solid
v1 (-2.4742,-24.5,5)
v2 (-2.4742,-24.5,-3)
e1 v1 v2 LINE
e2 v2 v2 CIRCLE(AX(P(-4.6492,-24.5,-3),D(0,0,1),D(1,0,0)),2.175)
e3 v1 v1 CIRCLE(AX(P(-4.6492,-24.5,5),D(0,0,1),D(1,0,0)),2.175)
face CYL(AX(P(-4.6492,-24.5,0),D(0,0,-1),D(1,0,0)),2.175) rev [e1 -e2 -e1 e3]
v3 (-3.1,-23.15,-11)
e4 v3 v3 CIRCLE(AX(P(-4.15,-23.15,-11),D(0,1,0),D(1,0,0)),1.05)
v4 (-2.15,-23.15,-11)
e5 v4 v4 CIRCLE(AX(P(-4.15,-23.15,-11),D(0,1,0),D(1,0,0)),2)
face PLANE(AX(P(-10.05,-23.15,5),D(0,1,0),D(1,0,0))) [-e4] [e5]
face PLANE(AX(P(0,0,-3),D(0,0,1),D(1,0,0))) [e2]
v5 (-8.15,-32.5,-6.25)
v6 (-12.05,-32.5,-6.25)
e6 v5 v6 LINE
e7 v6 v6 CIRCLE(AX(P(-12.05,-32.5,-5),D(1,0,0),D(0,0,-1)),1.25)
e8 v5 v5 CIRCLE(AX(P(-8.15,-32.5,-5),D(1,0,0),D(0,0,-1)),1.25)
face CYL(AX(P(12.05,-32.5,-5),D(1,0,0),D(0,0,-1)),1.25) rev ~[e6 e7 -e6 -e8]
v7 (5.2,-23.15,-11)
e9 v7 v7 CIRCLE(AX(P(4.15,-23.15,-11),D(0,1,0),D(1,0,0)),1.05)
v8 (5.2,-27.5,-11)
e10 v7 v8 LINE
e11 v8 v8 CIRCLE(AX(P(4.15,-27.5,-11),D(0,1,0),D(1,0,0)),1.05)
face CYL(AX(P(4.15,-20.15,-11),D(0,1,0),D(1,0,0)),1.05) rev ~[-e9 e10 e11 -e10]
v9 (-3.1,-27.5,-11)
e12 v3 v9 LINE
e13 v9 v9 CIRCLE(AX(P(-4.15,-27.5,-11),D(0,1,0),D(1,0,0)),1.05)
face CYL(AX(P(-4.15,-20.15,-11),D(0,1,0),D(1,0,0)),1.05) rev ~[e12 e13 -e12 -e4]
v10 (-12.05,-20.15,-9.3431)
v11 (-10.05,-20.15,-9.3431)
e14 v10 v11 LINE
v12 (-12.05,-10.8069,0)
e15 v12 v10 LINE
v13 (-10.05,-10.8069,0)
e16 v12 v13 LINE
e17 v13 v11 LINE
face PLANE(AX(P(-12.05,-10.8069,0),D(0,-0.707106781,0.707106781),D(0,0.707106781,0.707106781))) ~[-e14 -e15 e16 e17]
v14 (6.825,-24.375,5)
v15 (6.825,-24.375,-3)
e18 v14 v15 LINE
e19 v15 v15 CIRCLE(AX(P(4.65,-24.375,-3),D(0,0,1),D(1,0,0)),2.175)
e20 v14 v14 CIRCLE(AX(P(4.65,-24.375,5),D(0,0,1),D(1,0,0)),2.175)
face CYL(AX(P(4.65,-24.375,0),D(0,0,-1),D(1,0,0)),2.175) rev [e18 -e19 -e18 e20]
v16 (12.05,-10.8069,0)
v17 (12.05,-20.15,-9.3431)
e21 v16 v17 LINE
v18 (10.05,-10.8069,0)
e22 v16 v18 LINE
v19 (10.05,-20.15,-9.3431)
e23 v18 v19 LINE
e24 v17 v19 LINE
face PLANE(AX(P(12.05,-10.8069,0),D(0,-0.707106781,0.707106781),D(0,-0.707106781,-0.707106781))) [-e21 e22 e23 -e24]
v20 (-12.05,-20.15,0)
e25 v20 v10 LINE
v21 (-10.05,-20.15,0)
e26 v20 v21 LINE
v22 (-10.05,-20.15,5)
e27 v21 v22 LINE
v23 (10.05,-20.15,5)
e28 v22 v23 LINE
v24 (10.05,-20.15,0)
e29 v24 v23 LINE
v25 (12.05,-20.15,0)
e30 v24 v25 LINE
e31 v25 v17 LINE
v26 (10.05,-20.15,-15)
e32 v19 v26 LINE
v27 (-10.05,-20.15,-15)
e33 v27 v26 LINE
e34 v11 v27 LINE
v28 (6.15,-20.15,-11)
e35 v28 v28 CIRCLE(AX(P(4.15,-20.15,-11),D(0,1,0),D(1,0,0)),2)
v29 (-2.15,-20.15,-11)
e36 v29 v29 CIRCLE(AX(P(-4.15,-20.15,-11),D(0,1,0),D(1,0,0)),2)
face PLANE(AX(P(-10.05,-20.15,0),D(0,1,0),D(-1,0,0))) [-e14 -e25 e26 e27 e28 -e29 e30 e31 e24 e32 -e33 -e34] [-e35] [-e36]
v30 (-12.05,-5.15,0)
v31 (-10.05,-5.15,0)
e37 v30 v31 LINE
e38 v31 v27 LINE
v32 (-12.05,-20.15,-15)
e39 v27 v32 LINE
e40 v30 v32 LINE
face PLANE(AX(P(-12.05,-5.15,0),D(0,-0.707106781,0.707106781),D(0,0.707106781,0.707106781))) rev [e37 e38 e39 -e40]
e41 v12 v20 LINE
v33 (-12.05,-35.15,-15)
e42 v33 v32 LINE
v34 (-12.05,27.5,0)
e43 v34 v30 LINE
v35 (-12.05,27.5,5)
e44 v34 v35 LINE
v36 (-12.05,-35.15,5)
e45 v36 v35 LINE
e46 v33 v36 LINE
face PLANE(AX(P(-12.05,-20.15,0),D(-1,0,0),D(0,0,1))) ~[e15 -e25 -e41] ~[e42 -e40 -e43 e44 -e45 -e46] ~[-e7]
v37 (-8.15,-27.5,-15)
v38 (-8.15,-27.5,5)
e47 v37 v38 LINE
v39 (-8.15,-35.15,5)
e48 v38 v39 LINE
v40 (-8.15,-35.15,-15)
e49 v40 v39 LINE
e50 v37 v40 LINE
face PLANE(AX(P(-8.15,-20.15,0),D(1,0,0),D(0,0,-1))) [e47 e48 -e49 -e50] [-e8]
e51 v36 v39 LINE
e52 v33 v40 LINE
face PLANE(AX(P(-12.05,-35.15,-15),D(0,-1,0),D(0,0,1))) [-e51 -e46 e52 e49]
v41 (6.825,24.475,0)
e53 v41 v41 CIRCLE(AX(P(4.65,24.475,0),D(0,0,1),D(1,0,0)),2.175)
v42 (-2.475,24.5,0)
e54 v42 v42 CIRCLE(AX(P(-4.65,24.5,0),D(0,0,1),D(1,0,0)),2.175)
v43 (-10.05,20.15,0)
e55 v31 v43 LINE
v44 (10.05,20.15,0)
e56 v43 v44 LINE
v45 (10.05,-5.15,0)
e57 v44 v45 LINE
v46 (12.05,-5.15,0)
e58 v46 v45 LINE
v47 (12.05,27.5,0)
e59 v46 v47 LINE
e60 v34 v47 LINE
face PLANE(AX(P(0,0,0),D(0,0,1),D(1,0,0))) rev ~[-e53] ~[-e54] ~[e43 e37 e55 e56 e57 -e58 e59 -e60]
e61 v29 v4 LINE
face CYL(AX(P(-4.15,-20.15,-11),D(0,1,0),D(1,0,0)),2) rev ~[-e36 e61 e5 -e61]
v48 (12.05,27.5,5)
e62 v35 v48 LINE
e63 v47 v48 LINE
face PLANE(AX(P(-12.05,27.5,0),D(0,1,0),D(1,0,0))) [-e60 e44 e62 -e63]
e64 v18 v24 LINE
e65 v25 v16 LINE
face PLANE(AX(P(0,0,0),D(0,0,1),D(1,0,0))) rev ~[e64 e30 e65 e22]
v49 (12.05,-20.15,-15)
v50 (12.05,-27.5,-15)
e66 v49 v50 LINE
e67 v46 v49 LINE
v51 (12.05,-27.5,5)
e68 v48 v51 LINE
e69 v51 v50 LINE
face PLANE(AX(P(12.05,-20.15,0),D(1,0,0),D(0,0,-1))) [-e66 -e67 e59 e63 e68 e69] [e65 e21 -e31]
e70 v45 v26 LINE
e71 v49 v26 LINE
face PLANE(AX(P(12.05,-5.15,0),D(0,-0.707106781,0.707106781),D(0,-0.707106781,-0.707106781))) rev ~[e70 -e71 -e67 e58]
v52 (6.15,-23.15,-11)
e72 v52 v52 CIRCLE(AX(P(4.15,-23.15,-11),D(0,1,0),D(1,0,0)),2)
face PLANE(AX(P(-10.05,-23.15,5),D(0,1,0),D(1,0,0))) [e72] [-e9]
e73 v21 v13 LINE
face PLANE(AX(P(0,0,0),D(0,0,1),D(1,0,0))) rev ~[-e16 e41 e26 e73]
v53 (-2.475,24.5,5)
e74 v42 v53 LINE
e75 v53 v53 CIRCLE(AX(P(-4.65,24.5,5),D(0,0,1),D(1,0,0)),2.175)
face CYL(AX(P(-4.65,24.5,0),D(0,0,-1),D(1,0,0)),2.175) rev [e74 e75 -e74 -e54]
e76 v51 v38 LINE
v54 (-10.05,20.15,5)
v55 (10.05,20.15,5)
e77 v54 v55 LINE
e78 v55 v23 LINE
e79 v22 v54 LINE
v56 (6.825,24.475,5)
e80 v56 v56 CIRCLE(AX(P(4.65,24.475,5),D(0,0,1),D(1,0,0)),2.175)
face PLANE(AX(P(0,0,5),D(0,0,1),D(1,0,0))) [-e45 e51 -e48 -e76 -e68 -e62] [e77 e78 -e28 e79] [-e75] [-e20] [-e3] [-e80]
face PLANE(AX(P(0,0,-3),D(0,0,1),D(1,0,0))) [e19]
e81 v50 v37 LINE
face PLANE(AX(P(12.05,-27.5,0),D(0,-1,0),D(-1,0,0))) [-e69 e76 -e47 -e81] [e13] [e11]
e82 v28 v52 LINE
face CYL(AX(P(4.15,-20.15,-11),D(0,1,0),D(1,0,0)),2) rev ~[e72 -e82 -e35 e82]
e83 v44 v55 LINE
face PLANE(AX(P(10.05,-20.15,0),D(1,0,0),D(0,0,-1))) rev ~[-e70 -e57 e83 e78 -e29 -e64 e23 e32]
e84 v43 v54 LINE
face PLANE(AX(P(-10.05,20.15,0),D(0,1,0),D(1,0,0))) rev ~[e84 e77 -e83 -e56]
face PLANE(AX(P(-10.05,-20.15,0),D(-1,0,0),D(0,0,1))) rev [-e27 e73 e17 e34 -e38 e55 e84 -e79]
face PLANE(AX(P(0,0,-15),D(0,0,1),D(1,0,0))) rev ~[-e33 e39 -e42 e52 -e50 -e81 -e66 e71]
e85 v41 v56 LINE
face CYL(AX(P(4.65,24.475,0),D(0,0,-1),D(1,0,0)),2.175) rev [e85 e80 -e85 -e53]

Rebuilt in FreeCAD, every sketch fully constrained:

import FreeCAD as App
import Part
import Sketcher

V = App.Vector


def add_polygon(sketch, points):
    """Adds a closed chain of lines whose ends are joined by coincident constraints."""
    first, n = sketch.GeometryCount, len(points)
    for a, b in zip(points, points[1:] + points[:1]):
        sketch.addGeometry(Part.LineSegment(App.Vector(*a, 0), App.Vector(*b, 0)), False)
    for i in range(n):
        sketch.addConstraint(Sketcher.Constraint("Coincident", first + i, 2, first + (i + 1) % n, 1))

doc = App.newDocument("Part")
params = doc.addObject("Spreadsheet::Sheet", "Params")
for row, (alias, value) in enumerate([
    ("sketch1_diameter", "4.35 mm"),
    ("sketch1_height", "55 mm"),
    ("sketch1_width", "24.1 mm"),
    ("sketch1_width2", "20.1 mm"),
    ("sketch1_height2", "40.3 mm"),
    ("pad1_length", "5 mm"),
    ("sketch2_width", "24.1 mm"),
    ("sketch2_height", "7.35 mm"),
    ("pad2_length", "15 mm"),
    ("sketch3_diameter", "4.35 mm"),
    ("pocket1_length", "3 mm"),
    ("sketch4_diameter", "2.1 mm"),
    ("pocket2_length", "10 mm"),
    ("sketch5_diameter", "4 mm"),
    ("pocket3_length", "3 mm"),
    ("pad3_length", "2 mm"),
    ("sketch7_width", "15 mm"),
    ("pad4_length", "3.9 mm"),
    ("sketch8_diameter", "2.5 mm"),
    ("pocket4_length", "35.65 mm"),
], start=1):
    params.set(f"A{row}", alias)
    params.set(f"B{row}", "=" + value)
    params.setAlias(f"B{row}", alias)

body = doc.addObject("PartDesign::Body", "Body")

sketch1 = body.newObject("Sketcher::SketchObject", "Sketch")
sketch1.AttachmentSupport = (doc.getObject("XY_Plane"), [""])
sketch1.MapMode = "FlatFace"
add_polygon(sketch1, [(12.1, 27.5), (-12.1, 27.5), (-12.1, -27.5), (12.1, -27.5)])
add_polygon(sketch1, [(10.1, 20.1), (10.1, -20.1), (-10.1, -20.1), (-10.1, 20.1)])
sketch1.addGeometry(Part.Circle(V(-4.7, 24.5, 0), V(0, 0, 1), 2.2), False)
sketch1.addGeometry(Part.Circle(V(4.7, 24.5, 0), V(0, 0, 1), 2.2), False)
sketch1.addGeometry(Part.Circle(V(-4.6, -24.5, 0), V(0, 0, 1), 2.2), False)
sketch1.addGeometry(Part.Circle(V(4.7, -24.4, 0), V(0, 0, 1), 2.2), False)
sketch1.addConstraint(Sketcher.Constraint("Horizontal", 0))
sketch1.addConstraint(Sketcher.Constraint("Vertical", 1))
sketch1.addConstraint(Sketcher.Constraint("Horizontal", 2))
sketch1.addConstraint(Sketcher.Constraint("Vertical", 3))
sketch1.addConstraint(Sketcher.Constraint("Vertical", 4))
sketch1.addConstraint(Sketcher.Constraint("Horizontal", 5))
sketch1.addConstraint(Sketcher.Constraint("Vertical", 6))
sketch1.addConstraint(Sketcher.Constraint("Horizontal", 7))
sketch1.addConstraint(Sketcher.Constraint("Equal", 8, 9))
sketch1.addConstraint(Sketcher.Constraint("Equal", 9, 10))
sketch1.addConstraint(Sketcher.Constraint("Equal", 10, 11))
sketch1.addConstraint(Sketcher.Constraint("Symmetric", 0, 2, 2, 2, -1, 1))
sketch1.addConstraint(Sketcher.Constraint("Symmetric", 4, 2, 6, 2, -1, 1))
sketch1.addConstraint(Sketcher.Constraint("Vertical", 9, 3, 11, 3))
sketch1.addConstraint(Sketcher.Constraint("Diameter", 8, 4.35))
sketch1.addConstraint(Sketcher.Constraint("DistanceY", 1, 2, 1, 1, 55.0))
sketch1.addConstraint(Sketcher.Constraint("DistanceX", 0, 2, 0, 1, 24.1))
sketch1.addConstraint(Sketcher.Constraint("DistanceX", 5, 2, 5, 1, 20.1))
sketch1.addConstraint(Sketcher.Constraint("DistanceY", 4, 2, 4, 1, 40.3))
sketch1.addConstraint(Sketcher.Constraint("DistanceX", 8, 3, 9, 3, 9.3))
sketch1.addConstraint(Sketcher.Constraint("DistanceX", 11, 3, 4, 2, 5.4))
sketch1.addConstraint(Sketcher.Constraint("DistanceY", 11, 3, 9, 3, 48.85))
sketch1.addConstraint(Sketcher.Constraint("DistanceY", 10, 3, 4, 2, 4.35))
sketch1.addConstraint(Sketcher.Constraint("DistanceY", 6, 2, 8, 3, 4.35))
sketch1.addConstraint(Sketcher.Constraint("DistanceY", 6, 2, 9, 3, 4.325))
sketch1.addConstraint(Sketcher.Constraint("DistanceX", 10, 3, -1, 1, 4.6492))
sketch1.setExpression("Constraints[22]", "Params.sketch1_diameter")
sketch1.setExpression("Constraints[23]", "Params.sketch1_height")
sketch1.setExpression("Constraints[24]", "Params.sketch1_width")
sketch1.setExpression("Constraints[25]", "Params.sketch1_width2")
sketch1.setExpression("Constraints[26]", "Params.sketch1_height2")
pad1 = body.newObject("PartDesign::Pad", "Pad")
pad1.Profile = sketch1
pad1.setExpression("Length", "Params.pad1_length")

sketch2 = body.newObject("Sketcher::SketchObject", "Sketch001")
sketch2.AttachmentSupport = (doc.getObject("XY_Plane"), [""])
sketch2.MapMode = "FlatFace"
add_polygon(sketch2, [(-12, -20), (-12, -28), (12, -28), (12, -20)])
sketch2.addConstraint(Sketcher.Constraint("Vertical", 0))
sketch2.addConstraint(Sketcher.Constraint("Horizontal", 1))
sketch2.addConstraint(Sketcher.Constraint("Vertical", 2))
sketch2.addConstraint(Sketcher.Constraint("Horizontal", 3))
sketch2.addConstraint(Sketcher.Constraint("DistanceX", 1, 1, 1, 2, 24.1))
sketch2.addConstraint(Sketcher.Constraint("DistanceY", 0, 2, 0, 1, 7.35))
sketch2.addConstraint(Sketcher.Constraint("DistanceY", 0, 2, -1, 1, 27.5))
sketch2.addConstraint(Sketcher.Constraint("DistanceX", 0, 2, -1, 1, 12.05))
sketch2.setExpression("Constraints[8]", "Params.sketch2_width")
sketch2.setExpression("Constraints[9]", "Params.sketch2_height")
pad2 = body.newObject("PartDesign::Pad", "Pad001")
pad2.Profile = sketch2
pad2.setExpression("Length", "Params.pad2_length")
pad2.Reversed = True

sketch3 = body.newObject("Sketcher::SketchObject", "Sketch002")
sketch3.AttachmentSupport = (doc.getObject("XY_Plane"), [""])
sketch3.MapMode = "FlatFace"
sketch3.addGeometry(Part.Circle(V(-4.6, -24.5, 0), V(0, 0, 1), 2.2), False)
sketch3.addGeometry(Part.Circle(V(4.7, -24.4, 0), V(0, 0, 1), 2.2), False)
sketch3.addConstraint(Sketcher.Constraint("Equal", 0, 1))
sketch3.addConstraint(Sketcher.Constraint("Diameter", 0, 4.35))
sketch3.addConstraint(Sketcher.Constraint("DistanceY", 0, 3, -1, 1, 24.5))
sketch3.addConstraint(Sketcher.Constraint("DistanceX", -1, 1, 1, 3, 4.65))
sketch3.addConstraint(Sketcher.Constraint("DistanceY", 1, 3, -1, 1, 24.375))
sketch3.addConstraint(Sketcher.Constraint("DistanceX", 0, 3, -1, 1, 4.6492))
sketch3.setExpression("Constraints[1]", "Params.sketch3_diameter")
pocket1 = body.newObject("PartDesign::Pocket", "Pocket")
pocket1.Profile = sketch3
pocket1.setExpression("Length", "Params.pocket1_length")

sketch4 = body.newObject("Sketcher::SketchObject", "Sketch003")
sketch4.AttachmentSupport = (doc.getObject("XZ_Plane"), [""])
sketch4.MapMode = "FlatFace"
sketch4.AttachmentOffset = App.Placement(V(0, 0, 20.15), App.Rotation())
sketch4.addGeometry(Part.Circle(V(-4.2, -11, 0), V(0, 0, 1), 1.1), False)
sketch4.addGeometry(Part.Circle(V(4.2, -11, 0), V(0, 0, 1), 1.1), False)
sketch4.addConstraint(Sketcher.Constraint("Equal", 0, 1))
sketch4.addConstraint(Sketcher.Constraint("Symmetric", 0, 3, 1, 3, -2))
sketch4.addConstraint(Sketcher.Constraint("Diameter", 0, 2.1))
sketch4.addConstraint(Sketcher.Constraint("DistanceX", 0, 3, 1, 3, 8.3))
sketch4.addConstraint(Sketcher.Constraint("DistanceY", 0, 3, -1, 1, 11.0))
sketch4.setExpression("Constraints[2]", "Params.sketch4_diameter")
pocket2 = body.newObject("PartDesign::Pocket", "Pocket001")
pocket2.Profile = sketch4
pocket2.setExpression("Length", "Params.pocket2_length")
pocket2.Reversed = True

sketch5 = body.newObject("Sketcher::SketchObject", "Sketch004")
sketch5.AttachmentSupport = (doc.getObject("XZ_Plane"), [""])
sketch5.MapMode = "FlatFace"
sketch5.AttachmentOffset = App.Placement(V(0, 0, 20.15), App.Rotation())
sketch5.addGeometry(Part.Circle(V(-4.2, -11, 0), V(0, 0, 1), 2), False)
sketch5.addGeometry(Part.Circle(V(4.2, -11, 0), V(0, 0, 1), 2), False)
sketch5.addConstraint(Sketcher.Constraint("Equal", 0, 1))
sketch5.addConstraint(Sketcher.Constraint("Symmetric", 0, 3, 1, 3, -2))
sketch5.addConstraint(Sketcher.Constraint("Diameter", 0, 4.0))
sketch5.addConstraint(Sketcher.Constraint("DistanceX", 0, 3, 1, 3, 8.3))
sketch5.addConstraint(Sketcher.Constraint("DistanceY", 0, 3, -1, 1, 11.0))
sketch5.setExpression("Constraints[2]", "Params.sketch5_diameter")
pocket3 = body.newObject("PartDesign::Pocket", "Pocket002")
pocket3.Profile = sketch5
pocket3.setExpression("Length", "Params.pocket3_length")
pocket3.Reversed = True

sketch6 = body.newObject("Sketcher::SketchObject", "Sketch005")
sketch6.AttachmentSupport = (doc.getObject("YZ_Plane"), [""])
sketch6.MapMode = "FlatFace"
sketch6.AttachmentOffset = App.Placement(V(0, 0, 12.05), App.Rotation())
add_polygon(sketch6, [(-20, -15), (-5, 0), (-11, 0), (-20, -9)])
sketch6.addConstraint(Sketcher.Constraint("Horizontal", 1))
sketch6.addConstraint(Sketcher.Constraint("Vertical", 3))
sketch6.addConstraint(Sketcher.Constraint("PointOnObject", 0, 2, -1))
sketch6.addConstraint(Sketcher.Constraint("Parallel", 0, 2))
sketch6.addConstraint(Sketcher.Constraint("Equal", 1, 3))
sketch6.addConstraint(Sketcher.Constraint("DistanceY", 3, 2, -1, 1, 15.0))
sketch6.addConstraint(Sketcher.Constraint("DistanceX", 1, 2, 1, 1, 5.657))
sketch6.addConstraint(Sketcher.Constraint("DistanceX", 0, 2, -1, 1, 5.15))
pad3 = body.newObject("PartDesign::Pad", "Pad002")
pad3.Profile = sketch6
pad3.setExpression("Length", "Params.pad3_length")
pad3.Reversed = True
doc.recompute()

mirrored = body.newObject("PartDesign::Mirrored", "Mirrored")
mirrored.Originals = [pad3]
mirrored.MirrorPlane = (doc.getObject("YZ_Plane"), [""])
body.Tip = mirrored

sketch7 = body.newObject("Sketcher::SketchObject", "Sketch006")
sketch7.AttachmentSupport = (doc.getObject("YZ_Plane"), [""])
sketch7.MapMode = "FlatFace"
sketch7.AttachmentOffset = App.Placement(V(0, 0, -12.05), App.Rotation())
add_polygon(sketch7, [(-20, -15), (-20, 5), (-35, 5), (-35, -15)])
sketch7.addConstraint(Sketcher.Constraint("Vertical", 0))
sketch7.addConstraint(Sketcher.Constraint("Horizontal", 1))
sketch7.addConstraint(Sketcher.Constraint("Vertical", 2))
sketch7.addConstraint(Sketcher.Constraint("Horizontal", 3))
sketch7.addConstraint(Sketcher.Constraint("DistanceX", 1, 2, 1, 1, 15.0))
sketch7.addConstraint(Sketcher.Constraint("DistanceY", -1, 1, 0, 2, 5.0))
sketch7.addConstraint(Sketcher.Constraint("DistanceY", 2, 2, -1, 1, 15.0))
sketch7.addConstraint(Sketcher.Constraint("DistanceX", 0, 2, -1, 1, 20.15))
sketch7.setExpression("Constraints[8]", "Params.sketch7_width")
pad4 = body.newObject("PartDesign::Pad", "Pad003")
pad4.Profile = sketch7
pad4.setExpression("Length", "Params.pad4_length")

sketch8 = body.newObject("Sketcher::SketchObject", "Sketch007")
sketch8.AttachmentSupport = (doc.getObject("YZ_Plane"), [""])
sketch8.MapMode = "FlatFace"
sketch8.AttachmentOffset = App.Placement(V(0, 0, 12.05), App.Rotation())
sketch8.addGeometry(Part.Circle(V(-32.5, -5, 0), V(0, 0, 1), 1.2), False)
sketch8.addConstraint(Sketcher.Constraint("Diameter", 0, 2.5))
sketch8.addConstraint(Sketcher.Constraint("DistanceY", 0, 3, -1, 1, 5.0))
sketch8.addConstraint(Sketcher.Constraint("DistanceX", 0, 3, -1, 1, 32.5))
sketch8.setExpression("Constraints[0]", "Params.sketch8_diameter")
pocket4 = body.newObject("PartDesign::Pocket", "Pocket003")
pocket4.Profile = sketch8
pocket4.setExpression("Length", "Params.pocket4_length")

doc.recompute()
